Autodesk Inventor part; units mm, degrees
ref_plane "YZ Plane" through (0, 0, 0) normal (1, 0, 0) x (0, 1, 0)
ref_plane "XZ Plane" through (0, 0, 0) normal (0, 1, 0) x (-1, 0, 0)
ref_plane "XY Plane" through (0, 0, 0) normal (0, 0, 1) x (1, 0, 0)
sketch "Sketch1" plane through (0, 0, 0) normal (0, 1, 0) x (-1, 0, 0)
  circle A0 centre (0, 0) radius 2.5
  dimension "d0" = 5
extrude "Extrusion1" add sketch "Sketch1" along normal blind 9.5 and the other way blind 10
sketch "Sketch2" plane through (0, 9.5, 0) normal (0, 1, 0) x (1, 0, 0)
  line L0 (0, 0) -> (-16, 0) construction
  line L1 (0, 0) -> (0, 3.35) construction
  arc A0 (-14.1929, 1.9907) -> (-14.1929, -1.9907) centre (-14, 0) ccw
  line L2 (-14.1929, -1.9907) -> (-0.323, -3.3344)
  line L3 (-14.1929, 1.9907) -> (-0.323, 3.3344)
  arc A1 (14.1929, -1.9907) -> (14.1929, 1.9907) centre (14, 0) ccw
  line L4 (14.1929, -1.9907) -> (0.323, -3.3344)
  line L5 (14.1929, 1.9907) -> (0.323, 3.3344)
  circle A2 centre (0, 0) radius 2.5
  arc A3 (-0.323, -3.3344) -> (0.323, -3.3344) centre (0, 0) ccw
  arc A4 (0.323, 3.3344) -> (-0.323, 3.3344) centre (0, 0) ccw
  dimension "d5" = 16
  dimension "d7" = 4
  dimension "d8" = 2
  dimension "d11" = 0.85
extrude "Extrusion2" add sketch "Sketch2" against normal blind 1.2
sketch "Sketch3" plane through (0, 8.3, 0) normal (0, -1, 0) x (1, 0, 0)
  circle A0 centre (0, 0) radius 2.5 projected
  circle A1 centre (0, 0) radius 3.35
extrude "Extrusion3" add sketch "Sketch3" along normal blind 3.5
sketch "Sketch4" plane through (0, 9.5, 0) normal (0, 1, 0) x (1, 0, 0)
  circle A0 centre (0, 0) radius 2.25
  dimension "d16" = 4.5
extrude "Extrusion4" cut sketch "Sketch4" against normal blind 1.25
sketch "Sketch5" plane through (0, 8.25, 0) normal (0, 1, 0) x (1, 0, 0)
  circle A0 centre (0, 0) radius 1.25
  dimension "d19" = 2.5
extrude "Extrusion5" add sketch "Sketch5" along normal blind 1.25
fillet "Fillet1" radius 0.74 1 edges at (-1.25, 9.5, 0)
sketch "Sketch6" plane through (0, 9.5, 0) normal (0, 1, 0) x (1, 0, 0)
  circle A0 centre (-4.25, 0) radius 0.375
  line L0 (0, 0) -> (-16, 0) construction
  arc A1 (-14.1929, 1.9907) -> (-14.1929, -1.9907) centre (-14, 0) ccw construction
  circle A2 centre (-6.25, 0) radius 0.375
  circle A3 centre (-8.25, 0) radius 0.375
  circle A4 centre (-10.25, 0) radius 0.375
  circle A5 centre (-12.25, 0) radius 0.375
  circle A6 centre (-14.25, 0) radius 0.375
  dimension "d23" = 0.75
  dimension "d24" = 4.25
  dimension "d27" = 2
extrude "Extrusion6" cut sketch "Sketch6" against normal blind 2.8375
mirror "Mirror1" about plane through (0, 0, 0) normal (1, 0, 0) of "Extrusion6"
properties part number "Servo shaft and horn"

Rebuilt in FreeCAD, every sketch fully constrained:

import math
import FreeCAD as App
import Part
import Sketcher
from FreeCAD import Vector


def edges_at(feature, points):
    """Names of the edges that pass closest to the given points."""
    edges = feature.Shape.Edges
    near = lambda p: min(range(len(edges)), key=lambda i: edges[i].distToShape(Part.Vertex(*p))[0])
    return sorted({f"Edge{near(p) + 1}" for p in points})

doc = App.newDocument("Part")
params = doc.addObject("Spreadsheet::Sheet", "Params")
for row, (alias, value) in enumerate([
    ("sketch1_diameter", "5 mm"),
    ("pad1_length", "9.5 mm"),
    ("pad1_length2", "10 mm"),
    ("sketch2_radius", "2 mm"),
    ("sketch2_diameter", "5 mm"),
    ("sketch2_radius2", "3.35 mm"),
    ("pad2_length", "1.2 mm"),
    ("sketch3_diameter", "5 mm"),
    ("sketch3_diameter2", "6.7 mm"),
    ("pad3_length", "3.5 mm"),
    ("sketch4_diameter", "4.5 mm"),
    ("pocket1_length", "1.25 mm"),
    ("sketch5_diameter", "2.5 mm"),
    ("pad4_length", "1.25 mm"),
    ("fillet_radius", "0.74 mm"),
    ("sketch6_diameter", "0.75 mm"),
    ("pocket2_length", "2.8375 mm"),
], start=1):
    params.set(f"A{row}", alias)
    params.set(f"B{row}", "=" + value)
    params.setAlias(f"B{row}", alias)

body = doc.addObject("PartDesign::Body", "Body")

sketch1 = body.newObject("Sketcher::SketchObject", "Sketch")
sketch1.AttachmentSupport = (doc.getObject("XZ_Plane"), [""])
sketch1.MapMode = "FlatFace"
sketch1.addGeometry(Part.Circle(Vector(0, 0, 0), Vector(0, 0, 1), 2.5), False)
sketch1.addConstraint([
    Sketcher.Constraint("Coincident", 0, 3, -1, 1),
    Sketcher.Constraint("Diameter", 0, 5.0),
])
sketch1.setExpression("Constraints[1]", "Params.sketch1_diameter")
pad1 = body.newObject("PartDesign::Pad", "Pad")
pad1.Profile = sketch1
pad1.Type = "TwoLengths"
pad1.setExpression("Length", "Params.pad1_length")
pad1.setExpression("Length2", "Params.pad1_length2")
pad1.Reversed = True

sketch2 = body.newObject("Sketcher::SketchObject", "Sketch001")
sketch2.AttachmentSupport = (doc.getObject("XZ_Plane"), [""])
sketch2.MapMode = "FlatFace"
sketch2.AttachmentOffset = App.Placement(Vector(0, 0, -9.5), App.Rotation())
sketch2.addGeometry([
    Part.LineSegment(Vector(-0.3, -3.3, 0), Vector(-14.2, -2, 0)),
    Part.ArcOfCircle(Part.Circle(Vector(-14, 0, 0), Vector(0, 0, 1), 2), math.radians(96), math.radians(264)),
    Part.LineSegment(Vector(-14.2, 2, 0), Vector(-0.3, 3.3, 0)),
    Part.ArcOfCircle(Part.Circle(Vector(0, 0, 0), Vector(0, 0, 1), 3.4), math.radians(84.47), math.radians(95.53)),
    Part.LineSegment(Vector(0.3, 3.3, 0), Vector(14.2, 2, 0)),
    Part.ArcOfCircle(Part.Circle(Vector(14, 0, 0), Vector(0, 0, 1), 2), math.radians(-84), math.radians(84)),
    Part.LineSegment(Vector(14.2, -2, 0), Vector(0.3, -3.3, 0)),
    Part.ArcOfCircle(Part.Circle(Vector(0, 0, 0), Vector(0, 0, 1), 3.4), math.radians(-95.53), math.radians(-84.47)),
    Part.Circle(Vector(0, 0, 0), Vector(0, 0, 1), 2.5),
], False)
sketch2.addConstraint([
    Sketcher.Constraint("Tangent", 0, 2, 1, 2),
    Sketcher.Constraint("Tangent", 1, 1, 2, 1),
    Sketcher.Constraint("Tangent", 2, 2, 3, 2),
    Sketcher.Constraint("Tangent", 3, 1, 4, 1),
    Sketcher.Constraint("Tangent", 4, 2, 5, 2),
    Sketcher.Constraint("Tangent", 5, 1, 6, 1),
    Sketcher.Constraint("Tangent", 6, 2, 7, 2),
    Sketcher.Constraint("Tangent", 7, 1, 0, 1),
    Sketcher.Constraint("Coincident", 3, 3, -1, 1),
    Sketcher.Constraint("Coincident", 7, 3, -1, 1),
    Sketcher.Constraint("Coincident", 8, 3, -1, 1),
    Sketcher.Constraint("Equal", 1, 5),
    Sketcher.Constraint("Equal", 3, 7),
    Sketcher.Constraint("Symmetric", 1, 3, 5, 3, -1, 1),
    Sketcher.Constraint("PointOnObject", 1, 3, -1),
    Sketcher.Constraint("Radius", 1, 2.0),
    Sketcher.Constraint("Diameter", 8, 5.0),
    Sketcher.Constraint("Radius", 3, 3.35),
    Sketcher.Constraint("DistanceX", 1, 3, -1, 1, 14.0),
])
sketch2.setExpression("Constraints[15]", "Params.sketch2_radius")
sketch2.setExpression("Constraints[16]", "Params.sketch2_diameter")
sketch2.setExpression("Constraints[17]", "Params.sketch2_radius2")
pad2 = body.newObject("PartDesign::Pad", "Pad001")
pad2.Profile = sketch2
pad2.setExpression("Length", "Params.pad2_length")

sketch3 = body.newObject("Sketcher::SketchObject", "Sketch002")
sketch3.AttachmentSupport = (doc.getObject("XZ_Plane"), [""])
sketch3.MapMode = "FlatFace"
sketch3.AttachmentOffset = App.Placement(Vector(0, 0, -8.3), App.Rotation())
sketch3.addGeometry([
    Part.Circle(Vector(0, 0, 0), Vector(0, 0, 1), 3.4),
    Part.Circle(Vector(0, 0, 0), Vector(0, 0, 1), 2.5),
], False)
sketch3.addConstraint([
    Sketcher.Constraint("Coincident", 0, 3, -1, 1),
    Sketcher.Constraint("Coincident", 1, 3, -1, 1),
    Sketcher.Constraint("Diameter", 1, 5.0),
    Sketcher.Constraint("Diameter", 0, 6.7),
])
sketch3.setExpression("Constraints[2]", "Params.sketch3_diameter")
sketch3.setExpression("Constraints[3]", "Params.sketch3_diameter2")
pad3 = body.newObject("PartDesign::Pad", "Pad002")
pad3.Profile = sketch3
pad3.setExpression("Length", "Params.pad3_length")

sketch4 = body.newObject("Sketcher::SketchObject", "Sketch003")
sketch4.AttachmentSupport = (doc.getObject("XZ_Plane"), [""])
sketch4.MapMode = "FlatFace"
sketch4.AttachmentOffset = App.Placement(Vector(0, 0, -9.5), App.Rotation())
sketch4.addGeometry(Part.Circle(Vector(0, 0, 0), Vector(0, 0, 1), 2.2), False)
sketch4.addConstraint([
    Sketcher.Constraint("Coincident", 0, 3, -1, 1),
    Sketcher.Constraint("Diameter", 0, 4.5),
])
sketch4.setExpression("Constraints[1]", "Params.sketch4_diameter")
pocket1 = body.newObject("PartDesign::Pocket", "Pocket")
pocket1.Profile = sketch4
pocket1.setExpression("Length", "Params.pocket1_length")
pocket1.Reversed = True

sketch5 = body.newObject("Sketcher::SketchObject", "Sketch004")
sketch5.AttachmentSupport = (doc.getObject("XZ_Plane"), [""])
sketch5.MapMode = "FlatFace"
sketch5.AttachmentOffset = App.Placement(Vector(0, 0, -8.25), App.Rotation())
sketch5.addGeometry(Part.Circle(Vector(0, 0, 0), Vector(0, 0, 1), 1.2), False)
sketch5.addConstraint([
    Sketcher.Constraint("Coincident", 0, 3, -1, 1),
    Sketcher.Constraint("Diameter", 0, 2.5),
])
sketch5.setExpression("Constraints[1]", "Params.sketch5_diameter")
pad4 = body.newObject("PartDesign::Pad", "Pad003")
pad4.Profile = sketch5
pad4.setExpression("Length", "Params.pad4_length")
pad4.Reversed = True
doc.recompute()

fillet = body.newObject("PartDesign::Fillet", "Fillet")
fillet.Base = (pad4, edges_at(pad4, [(-1.25, 9.5, 0)]))
fillet.setExpression("Radius", "Params.fillet_radius")

sketch6 = body.newObject("Sketcher::SketchObject", "Sketch005")
sketch6.AttachmentSupport = (doc.getObject("XZ_Plane"), [""])
sketch6.MapMode = "FlatFace"
sketch6.AttachmentOffset = App.Placement(Vector(0, 0, -9.5), App.Rotation())
sketch6.addGeometry([
    Part.Circle(Vector(-4.25, 0, 0), Vector(0, 0, 1), 0.38),
    Part.Circle(Vector(-6.25, 0, 0), Vector(0, 0, 1), 0.38),
    Part.Circle(Vector(-8.25, 0, 0), Vector(0, 0, 1), 0.38),
    Part.Circle(Vector(-10.25, 0, 0), Vector(0, 0, 1), 0.38),
    Part.Circle(Vector(-12.25, 0, 0), Vector(0, 0, 1), 0.38),
    Part.Circle(Vector(-14.25, 0, 0), Vector(0, 0, 1), 0.38),
], False)
sketch6.addConstraint([
    Sketcher.Constraint("Equal", 0, 1),
    Sketcher.Constraint("Equal", 1, 2),
    Sketcher.Constraint("Equal", 2, 3),
    Sketcher.Constraint("Equal", 3, 4),
    Sketcher.Constraint("Equal", 4, 5),
    Sketcher.Constraint("PointOnObject", 0, 3, -1),
    Sketcher.Constraint("PointOnObject", 1, 3, -1),
    Sketcher.Constraint("PointOnObject", 2, 3, -1),
    Sketcher.Constraint("PointOnObject", 3, 3, -1),
    Sketcher.Constraint("PointOnObject", 4, 3, -1),
    Sketcher.Constraint("PointOnObject", 5, 3, -1),
    Sketcher.Constraint("Diameter", 0, 0.75),
    Sketcher.Constraint("DistanceX", 1, 3, 0, 3, 2.0),
    Sketcher.Constraint("DistanceX", 2, 3, 1, 3, 2.0),
    Sketcher.Constraint("DistanceX", 3, 3, 2, 3, 2.0),
    Sketcher.Constraint("DistanceX", 4, 3, 3, 3, 2.0),
    Sketcher.Constraint("DistanceX", 5, 3, 4, 3, 2.0),
    Sketcher.Constraint("DistanceX", 0, 3, -1, 1, 4.25),
])
sketch6.setExpression("Constraints[11]", "Params.sketch6_diameter")
pocket2 = body.newObject("PartDesign::Pocket", "Pocket001")
pocket2.Profile = sketch6
pocket2.setExpression("Length", "Params.pocket2_length")
pocket2.Reversed = True
doc.recompute()

mirrored = body.newObject("PartDesign::Mirrored", "Mirrored")
mirrored.Originals = [pocket2]
mirrored.MirrorPlane = (doc.getObject("YZ_Plane"), [""])
body.Tip = mirrored

doc.recompute()
